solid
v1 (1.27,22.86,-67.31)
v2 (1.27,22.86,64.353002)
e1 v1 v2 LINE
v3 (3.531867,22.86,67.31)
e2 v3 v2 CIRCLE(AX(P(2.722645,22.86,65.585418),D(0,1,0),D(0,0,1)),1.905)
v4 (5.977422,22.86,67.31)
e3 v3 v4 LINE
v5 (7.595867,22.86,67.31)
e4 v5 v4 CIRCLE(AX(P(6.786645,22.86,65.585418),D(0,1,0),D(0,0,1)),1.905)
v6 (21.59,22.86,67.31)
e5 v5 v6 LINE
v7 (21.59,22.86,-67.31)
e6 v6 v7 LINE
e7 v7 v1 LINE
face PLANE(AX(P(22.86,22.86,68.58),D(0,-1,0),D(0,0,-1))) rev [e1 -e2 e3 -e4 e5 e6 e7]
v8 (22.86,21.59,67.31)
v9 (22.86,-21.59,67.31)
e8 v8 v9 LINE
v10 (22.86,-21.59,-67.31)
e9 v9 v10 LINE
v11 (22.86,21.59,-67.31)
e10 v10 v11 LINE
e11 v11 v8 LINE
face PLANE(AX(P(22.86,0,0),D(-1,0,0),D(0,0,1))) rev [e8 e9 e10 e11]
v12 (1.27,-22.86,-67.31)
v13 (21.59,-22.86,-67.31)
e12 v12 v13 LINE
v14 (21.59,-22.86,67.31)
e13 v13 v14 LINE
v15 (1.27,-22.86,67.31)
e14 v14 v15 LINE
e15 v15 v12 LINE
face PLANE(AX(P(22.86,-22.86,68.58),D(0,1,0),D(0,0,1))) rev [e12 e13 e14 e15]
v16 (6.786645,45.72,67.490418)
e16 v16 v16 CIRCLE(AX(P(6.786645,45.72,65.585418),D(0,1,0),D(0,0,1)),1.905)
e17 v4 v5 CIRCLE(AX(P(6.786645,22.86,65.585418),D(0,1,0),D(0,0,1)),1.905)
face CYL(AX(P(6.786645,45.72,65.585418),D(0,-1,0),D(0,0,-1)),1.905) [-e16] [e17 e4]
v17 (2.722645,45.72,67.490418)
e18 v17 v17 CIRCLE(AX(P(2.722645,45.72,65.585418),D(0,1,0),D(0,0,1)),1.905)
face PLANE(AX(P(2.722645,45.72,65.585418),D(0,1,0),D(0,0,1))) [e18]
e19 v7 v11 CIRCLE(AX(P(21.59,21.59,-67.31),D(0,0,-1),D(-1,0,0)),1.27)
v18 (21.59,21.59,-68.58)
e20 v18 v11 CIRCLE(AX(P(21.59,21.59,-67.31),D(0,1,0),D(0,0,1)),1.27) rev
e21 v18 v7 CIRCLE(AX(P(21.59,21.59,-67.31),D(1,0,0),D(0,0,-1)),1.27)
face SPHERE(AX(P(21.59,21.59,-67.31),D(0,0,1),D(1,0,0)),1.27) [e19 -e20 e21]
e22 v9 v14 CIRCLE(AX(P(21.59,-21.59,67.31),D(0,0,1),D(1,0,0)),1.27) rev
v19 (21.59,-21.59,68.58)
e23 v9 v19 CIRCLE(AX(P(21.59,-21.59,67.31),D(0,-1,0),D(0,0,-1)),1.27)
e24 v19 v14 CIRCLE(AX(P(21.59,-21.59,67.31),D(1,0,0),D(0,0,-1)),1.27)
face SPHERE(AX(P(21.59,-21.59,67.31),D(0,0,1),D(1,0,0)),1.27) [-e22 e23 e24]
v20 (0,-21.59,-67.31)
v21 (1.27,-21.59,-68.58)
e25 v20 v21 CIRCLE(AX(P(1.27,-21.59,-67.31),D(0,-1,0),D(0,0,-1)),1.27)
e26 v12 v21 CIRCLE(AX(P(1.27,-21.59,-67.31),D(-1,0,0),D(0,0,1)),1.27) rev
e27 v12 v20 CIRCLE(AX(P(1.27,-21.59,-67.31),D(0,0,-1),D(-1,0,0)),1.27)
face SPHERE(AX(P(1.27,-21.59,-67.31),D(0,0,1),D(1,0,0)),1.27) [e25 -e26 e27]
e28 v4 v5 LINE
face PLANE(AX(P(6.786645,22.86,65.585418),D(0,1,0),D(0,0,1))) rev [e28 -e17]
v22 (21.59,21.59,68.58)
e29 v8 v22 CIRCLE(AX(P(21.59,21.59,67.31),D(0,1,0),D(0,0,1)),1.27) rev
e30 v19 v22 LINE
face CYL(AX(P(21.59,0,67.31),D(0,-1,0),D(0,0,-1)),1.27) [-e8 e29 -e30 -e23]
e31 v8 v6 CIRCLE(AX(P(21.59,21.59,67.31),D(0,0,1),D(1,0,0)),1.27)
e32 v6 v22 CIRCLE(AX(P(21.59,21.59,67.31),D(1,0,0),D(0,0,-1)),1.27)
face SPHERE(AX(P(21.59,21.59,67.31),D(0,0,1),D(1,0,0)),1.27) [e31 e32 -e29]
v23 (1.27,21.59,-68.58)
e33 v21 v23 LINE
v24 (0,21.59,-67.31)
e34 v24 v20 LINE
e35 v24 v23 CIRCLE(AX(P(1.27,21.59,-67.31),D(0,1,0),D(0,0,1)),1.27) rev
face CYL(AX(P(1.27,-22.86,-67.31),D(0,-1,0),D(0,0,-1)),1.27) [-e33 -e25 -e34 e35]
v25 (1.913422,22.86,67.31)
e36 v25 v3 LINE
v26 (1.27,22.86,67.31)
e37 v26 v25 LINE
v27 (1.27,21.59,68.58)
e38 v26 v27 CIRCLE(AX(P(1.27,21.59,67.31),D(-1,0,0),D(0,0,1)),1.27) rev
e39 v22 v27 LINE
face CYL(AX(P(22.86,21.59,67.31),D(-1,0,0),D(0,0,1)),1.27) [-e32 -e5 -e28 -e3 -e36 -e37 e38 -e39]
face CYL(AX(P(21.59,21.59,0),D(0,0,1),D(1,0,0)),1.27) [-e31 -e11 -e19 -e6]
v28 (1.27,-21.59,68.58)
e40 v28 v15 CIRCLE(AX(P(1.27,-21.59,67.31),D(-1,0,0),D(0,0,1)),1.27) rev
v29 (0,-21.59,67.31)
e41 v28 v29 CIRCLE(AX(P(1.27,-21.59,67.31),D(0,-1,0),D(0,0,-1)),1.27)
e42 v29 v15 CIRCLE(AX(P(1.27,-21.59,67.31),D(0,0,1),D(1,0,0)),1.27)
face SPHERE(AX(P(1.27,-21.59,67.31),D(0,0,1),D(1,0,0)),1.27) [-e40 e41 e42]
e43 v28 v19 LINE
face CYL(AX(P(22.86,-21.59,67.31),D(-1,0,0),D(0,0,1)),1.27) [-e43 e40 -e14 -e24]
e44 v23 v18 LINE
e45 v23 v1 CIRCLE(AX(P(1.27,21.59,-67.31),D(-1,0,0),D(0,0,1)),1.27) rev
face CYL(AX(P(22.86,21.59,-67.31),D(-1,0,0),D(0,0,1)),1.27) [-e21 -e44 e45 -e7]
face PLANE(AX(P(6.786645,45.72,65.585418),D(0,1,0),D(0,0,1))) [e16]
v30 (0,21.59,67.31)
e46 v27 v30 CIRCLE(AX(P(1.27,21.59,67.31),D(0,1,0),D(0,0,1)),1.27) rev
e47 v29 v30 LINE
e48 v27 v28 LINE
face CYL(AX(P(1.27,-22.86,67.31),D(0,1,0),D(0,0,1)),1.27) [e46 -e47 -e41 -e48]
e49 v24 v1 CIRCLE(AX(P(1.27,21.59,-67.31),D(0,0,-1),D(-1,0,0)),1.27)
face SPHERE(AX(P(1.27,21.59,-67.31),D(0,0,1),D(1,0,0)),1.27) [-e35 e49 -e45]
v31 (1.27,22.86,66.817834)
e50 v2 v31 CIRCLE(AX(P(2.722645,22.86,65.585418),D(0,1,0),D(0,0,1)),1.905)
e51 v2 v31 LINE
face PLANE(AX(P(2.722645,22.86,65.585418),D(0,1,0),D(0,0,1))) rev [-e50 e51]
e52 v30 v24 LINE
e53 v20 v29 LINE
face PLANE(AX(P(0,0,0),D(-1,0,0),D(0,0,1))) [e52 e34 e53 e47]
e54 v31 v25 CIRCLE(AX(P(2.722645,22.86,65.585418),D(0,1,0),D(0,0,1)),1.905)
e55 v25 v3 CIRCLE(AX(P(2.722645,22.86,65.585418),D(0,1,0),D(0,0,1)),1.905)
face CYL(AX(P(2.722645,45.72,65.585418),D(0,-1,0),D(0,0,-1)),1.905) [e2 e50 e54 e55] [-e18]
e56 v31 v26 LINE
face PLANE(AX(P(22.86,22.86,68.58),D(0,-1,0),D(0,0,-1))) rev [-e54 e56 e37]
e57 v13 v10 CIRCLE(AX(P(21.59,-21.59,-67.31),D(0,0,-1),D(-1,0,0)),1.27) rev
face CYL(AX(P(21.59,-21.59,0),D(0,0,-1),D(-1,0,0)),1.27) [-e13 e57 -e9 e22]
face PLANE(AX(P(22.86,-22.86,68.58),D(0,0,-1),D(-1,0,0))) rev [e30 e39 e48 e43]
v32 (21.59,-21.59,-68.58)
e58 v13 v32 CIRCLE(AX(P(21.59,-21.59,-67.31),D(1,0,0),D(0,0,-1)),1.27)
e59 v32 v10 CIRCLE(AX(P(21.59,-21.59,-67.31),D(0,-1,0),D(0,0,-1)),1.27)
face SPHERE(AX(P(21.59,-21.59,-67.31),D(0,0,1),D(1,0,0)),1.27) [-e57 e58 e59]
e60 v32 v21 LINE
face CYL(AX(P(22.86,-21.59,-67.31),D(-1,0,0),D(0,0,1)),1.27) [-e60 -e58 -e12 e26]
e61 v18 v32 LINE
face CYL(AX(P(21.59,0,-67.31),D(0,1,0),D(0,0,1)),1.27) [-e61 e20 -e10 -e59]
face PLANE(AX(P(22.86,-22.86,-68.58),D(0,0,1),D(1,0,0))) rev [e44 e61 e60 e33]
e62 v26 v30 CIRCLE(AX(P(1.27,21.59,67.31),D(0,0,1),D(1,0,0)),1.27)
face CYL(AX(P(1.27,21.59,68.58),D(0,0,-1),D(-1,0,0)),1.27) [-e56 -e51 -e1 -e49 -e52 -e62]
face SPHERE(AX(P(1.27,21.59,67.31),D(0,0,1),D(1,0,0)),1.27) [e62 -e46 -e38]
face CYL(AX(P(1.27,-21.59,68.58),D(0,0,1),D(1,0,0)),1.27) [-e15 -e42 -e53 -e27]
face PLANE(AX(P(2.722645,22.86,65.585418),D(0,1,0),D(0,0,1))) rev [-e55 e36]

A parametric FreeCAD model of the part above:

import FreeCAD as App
import Part
import Sketcher
Q = App.Units.Quantity


def add_polygon(sketch, points):
    """Adds a closed chain of lines whose ends are joined by coincident constraints."""
    first, n = sketch.GeometryCount, len(points)
    for a, b in zip(points, points[1:] + points[:1]):
        sketch.addGeometry(Part.LineSegment(App.Vector(*a, 0), App.Vector(*b, 0)), False)
    for i in range(n):
        sketch.addConstraint(Sketcher.Constraint("Coincident", first + i, 2, first + (i + 1) % n, 1))

doc = App.newDocument("Part")
params = doc.addObject("Spreadsheet::Sheet", "Params")
for row, (alias, value) in enumerate([
    ("sketch1_width", "1.8 in"),
    ("sketch1_height", "5.4 in"),
    ("pad1_length", "0.9 in"),
    ("fillet_radius", "0.05 in"),
    ("sketch2_diameter", "0.15 in"),
    ("pad2_length", "0.9 in"),
], start=1):
    params.set(f"A{row}", alias)
    params.set(f"B{row}", "=" + value)
    params.setAlias(f"B{row}", alias)

body = doc.addObject("PartDesign::Body", "Body")

sketch1 = doc.addObject("Sketcher::SketchObject", "Sketch")
body.addObject(sketch1)
sketch1.AttachmentSupport = (doc.YZ_Plane, [""])
sketch1.MapMode = "FlatFace"
add_polygon(sketch1, [(23, 69), (-23, 69), (-23, -69), (23, -69)])
sketch1.addConstraint([
    Sketcher.Constraint("Horizontal", 0),
    Sketcher.Constraint("Vertical", 1),
    Sketcher.Constraint("Horizontal", 2),
    Sketcher.Constraint("Vertical", 3),
    Sketcher.Constraint("Symmetric", 0, 2, 2, 2, -1, 1),
    Sketcher.Constraint("DistanceX", 0, 2, 0, 1, Q("1.8 in")),
    Sketcher.Constraint("DistanceY", 1, 2, 1, 1, Q("5.4 in")),
])
sketch1.setExpression("Constraints[9]", "Params.sketch1_width")
sketch1.setExpression("Constraints[10]", "Params.sketch1_height")
pad1 = doc.addObject("PartDesign::Pad", "Pad")
body.addObject(pad1)
pad1.Profile = sketch1
pad1.setExpression("Length", "Params.pad1_length")
doc.recompute()

fillet = doc.addObject("PartDesign::Fillet", "Fillet")
body.addObject(fillet)
fillet.Base = (pad1, ["Edge1"])
fillet.UseAllEdges = True
fillet.setExpression("Radius", "Params.fillet_radius")

sketch2 = doc.addObject("Sketcher::SketchObject", "Sketch001")
body.addObject(sketch2)
sketch2.AttachmentSupport = (doc.XZ_Plane, [""])
sketch2.MapMode = "FlatFace"
sketch2.AttachmentOffset = App.Placement(App.Vector(0, 0, -0.9 * 25.4), App.Rotation())
sketch2.addGeometry([
    Part.Circle(App.Vector(2.7, 65.6, 0), App.Vector(0, 0, 1), 1.9),
    Part.Circle(App.Vector(6.8, 65.6, 0), App.Vector(0, 0, 1), 1.9),
], False)
sketch2.addConstraint([
    Sketcher.Constraint("Equal", 0, 1),
    Sketcher.Constraint("Horizontal", 0, 3, 1, 3),
    Sketcher.Constraint("Diameter", 0, Q("0.15 in")),
    Sketcher.Constraint("DistanceX", 0, 3, 1, 3, Q("0.16 in")),
    Sketcher.Constraint("DistanceX", -1, 1, 0, 3, 2.722645),
    Sketcher.Constraint("DistanceY", -1, 1, 0, 3, 65.585418),
])
sketch2.setExpression("Constraints[2]", "Params.sketch2_diameter")
pad2 = doc.addObject("PartDesign::Pad", "Pad001")
body.addObject(pad2)
pad2.Profile = sketch2
pad2.setExpression("Length", "Params.pad2_length")
pad2.Reversed = True

doc.recompute()
